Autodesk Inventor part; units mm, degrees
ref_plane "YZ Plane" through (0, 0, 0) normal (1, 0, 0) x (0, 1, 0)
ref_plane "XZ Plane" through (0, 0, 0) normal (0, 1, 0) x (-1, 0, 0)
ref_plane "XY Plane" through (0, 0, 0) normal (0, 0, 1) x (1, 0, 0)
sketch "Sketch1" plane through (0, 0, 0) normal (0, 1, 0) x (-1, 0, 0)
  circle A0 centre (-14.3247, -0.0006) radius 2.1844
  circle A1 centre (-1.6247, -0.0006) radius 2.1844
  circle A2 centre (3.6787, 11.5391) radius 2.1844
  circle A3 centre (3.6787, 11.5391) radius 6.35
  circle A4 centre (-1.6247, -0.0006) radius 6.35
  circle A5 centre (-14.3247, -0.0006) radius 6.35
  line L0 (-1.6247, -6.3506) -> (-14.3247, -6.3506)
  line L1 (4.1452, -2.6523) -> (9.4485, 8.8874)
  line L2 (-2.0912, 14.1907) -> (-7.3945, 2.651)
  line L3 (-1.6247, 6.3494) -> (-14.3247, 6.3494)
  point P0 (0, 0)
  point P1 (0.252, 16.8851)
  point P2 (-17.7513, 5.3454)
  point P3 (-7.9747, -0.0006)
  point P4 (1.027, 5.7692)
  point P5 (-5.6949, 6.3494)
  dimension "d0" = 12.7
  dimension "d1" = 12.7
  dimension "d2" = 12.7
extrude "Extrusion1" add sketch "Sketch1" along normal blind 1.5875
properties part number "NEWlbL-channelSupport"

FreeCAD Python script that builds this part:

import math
import FreeCAD as App
import Part
import Sketcher
Q = App.Units.Quantity

doc = App.newDocument("Part")
body = doc.addObject("PartDesign::Body", "Body")

sketch1 = body.newObject("Sketcher::SketchObject", "Sketch")
sketch1.AttachmentSupport = (doc.getObject("XZ_Plane"), [""])
sketch1.MapMode = "FlatFace"
sketch1.addGeometry(Part.ArcOfCircle(Part.Circle(App.Vector(-3.7, 11.5, 0), App.Vector(0, 0, 1), 6.3), math.radians(25), math.radians(205)), False)
sketch1.addGeometry(Part.LineSegment(App.Vector(2.1, 14.2, 0), App.Vector(5.7, 6.3, 0)), False)
sketch1.addGeometry(Part.LineSegment(App.Vector(5.7, 6.3, 0), App.Vector(14.3, 6.3, 0)), False)
sketch1.addGeometry(Part.ArcOfCircle(Part.Circle(App.Vector(14.3, 0, 0), App.Vector(0, 0, 1), 6.3), math.radians(-90), math.radians(90)), False)
sketch1.addGeometry(Part.LineSegment(App.Vector(14.3, -6.4, 0), App.Vector(1.6, -6.4, 0)), False)
sketch1.addGeometry(Part.ArcOfCircle(Part.Circle(App.Vector(1.6, 0, 0), App.Vector(0, 0, 1), 6.3), math.radians(-155), math.radians(-90)), False)
sketch1.addGeometry(Part.LineSegment(App.Vector(-4.1, -2.7, 0), App.Vector(-9.4, 8.9, 0)), False)
sketch1.addGeometry(Part.Circle(App.Vector(-3.7, 11.5, 0), App.Vector(0, 0, 1), 2.2), False)
sketch1.addGeometry(Part.Circle(App.Vector(1.6, 0, 0), App.Vector(0, 0, 1), 2.2), False)
sketch1.addGeometry(Part.Circle(App.Vector(14.3, 0, 0), App.Vector(0, 0, 1), 2.2), False)
sketch1.addConstraint(Sketcher.Constraint("Tangent", 0, 1, 1, 1))
sketch1.addConstraint(Sketcher.Constraint("Coincident", 1, 2, 2, 1))
sketch1.addConstraint(Sketcher.Constraint("Tangent", 2, 2, 3, 2))
sketch1.addConstraint(Sketcher.Constraint("Tangent", 3, 1, 4, 1))
sketch1.addConstraint(Sketcher.Constraint("Tangent", 4, 2, 5, 2))
sketch1.addConstraint(Sketcher.Constraint("Tangent", 5, 1, 6, 1))
sketch1.addConstraint(Sketcher.Constraint("Tangent", 6, 2, 0, 2))
sketch1.addConstraint(Sketcher.Constraint("Horizontal", 2))
sketch1.addConstraint(Sketcher.Constraint("Horizontal", 4))
sketch1.addConstraint(Sketcher.Constraint("Coincident", 7, 3, 0, 3))
sketch1.addConstraint(Sketcher.Constraint("Coincident", 8, 3, 5, 3))
sketch1.addConstraint(Sketcher.Constraint("Coincident", 9, 3, 3, 3))
sketch1.addConstraint(Sketcher.Constraint("Equal", 0, 3))
sketch1.addConstraint(Sketcher.Constraint("Equal", 3, 5))
sketch1.addConstraint(Sketcher.Constraint("Equal", 7, 8))
sketch1.addConstraint(Sketcher.Constraint("Equal", 8, 9))
sketch1.addConstraint(Sketcher.Constraint("Parallel", 1, 6))
sketch1.addConstraint(Sketcher.Constraint("Radius", 0, Q("0.25 in")))
sketch1.addConstraint(Sketcher.Constraint("DistanceX", 4, 2, 4, 1, Q("0.5 in")))
sketch1.addConstraint(Sketcher.Constraint("Distance", 6, Q("0.5 in")))
sketch1.addConstraint(Sketcher.Constraint("Diameter", 7, Q("0.172 in")))
sketch1.addConstraint(Sketcher.Constraint("DistanceX", 6, 2, -1, 1, Q("0.372 in")))
sketch1.addConstraint(Sketcher.Constraint("DistanceX", 2, 1, 2, 2, Q("8.6299 mm")))
sketch1.addConstraint(Sketcher.Constraint("DistanceY", -1, 1, 0, 3, Q("0.4543 in")))
pad1 = body.newObject("PartDesign::Pad", "Pad")
pad1.Profile = sketch1
pad1.Length = Q("0.0625 in")
pad1.Reversed = True

doc.recompute()
